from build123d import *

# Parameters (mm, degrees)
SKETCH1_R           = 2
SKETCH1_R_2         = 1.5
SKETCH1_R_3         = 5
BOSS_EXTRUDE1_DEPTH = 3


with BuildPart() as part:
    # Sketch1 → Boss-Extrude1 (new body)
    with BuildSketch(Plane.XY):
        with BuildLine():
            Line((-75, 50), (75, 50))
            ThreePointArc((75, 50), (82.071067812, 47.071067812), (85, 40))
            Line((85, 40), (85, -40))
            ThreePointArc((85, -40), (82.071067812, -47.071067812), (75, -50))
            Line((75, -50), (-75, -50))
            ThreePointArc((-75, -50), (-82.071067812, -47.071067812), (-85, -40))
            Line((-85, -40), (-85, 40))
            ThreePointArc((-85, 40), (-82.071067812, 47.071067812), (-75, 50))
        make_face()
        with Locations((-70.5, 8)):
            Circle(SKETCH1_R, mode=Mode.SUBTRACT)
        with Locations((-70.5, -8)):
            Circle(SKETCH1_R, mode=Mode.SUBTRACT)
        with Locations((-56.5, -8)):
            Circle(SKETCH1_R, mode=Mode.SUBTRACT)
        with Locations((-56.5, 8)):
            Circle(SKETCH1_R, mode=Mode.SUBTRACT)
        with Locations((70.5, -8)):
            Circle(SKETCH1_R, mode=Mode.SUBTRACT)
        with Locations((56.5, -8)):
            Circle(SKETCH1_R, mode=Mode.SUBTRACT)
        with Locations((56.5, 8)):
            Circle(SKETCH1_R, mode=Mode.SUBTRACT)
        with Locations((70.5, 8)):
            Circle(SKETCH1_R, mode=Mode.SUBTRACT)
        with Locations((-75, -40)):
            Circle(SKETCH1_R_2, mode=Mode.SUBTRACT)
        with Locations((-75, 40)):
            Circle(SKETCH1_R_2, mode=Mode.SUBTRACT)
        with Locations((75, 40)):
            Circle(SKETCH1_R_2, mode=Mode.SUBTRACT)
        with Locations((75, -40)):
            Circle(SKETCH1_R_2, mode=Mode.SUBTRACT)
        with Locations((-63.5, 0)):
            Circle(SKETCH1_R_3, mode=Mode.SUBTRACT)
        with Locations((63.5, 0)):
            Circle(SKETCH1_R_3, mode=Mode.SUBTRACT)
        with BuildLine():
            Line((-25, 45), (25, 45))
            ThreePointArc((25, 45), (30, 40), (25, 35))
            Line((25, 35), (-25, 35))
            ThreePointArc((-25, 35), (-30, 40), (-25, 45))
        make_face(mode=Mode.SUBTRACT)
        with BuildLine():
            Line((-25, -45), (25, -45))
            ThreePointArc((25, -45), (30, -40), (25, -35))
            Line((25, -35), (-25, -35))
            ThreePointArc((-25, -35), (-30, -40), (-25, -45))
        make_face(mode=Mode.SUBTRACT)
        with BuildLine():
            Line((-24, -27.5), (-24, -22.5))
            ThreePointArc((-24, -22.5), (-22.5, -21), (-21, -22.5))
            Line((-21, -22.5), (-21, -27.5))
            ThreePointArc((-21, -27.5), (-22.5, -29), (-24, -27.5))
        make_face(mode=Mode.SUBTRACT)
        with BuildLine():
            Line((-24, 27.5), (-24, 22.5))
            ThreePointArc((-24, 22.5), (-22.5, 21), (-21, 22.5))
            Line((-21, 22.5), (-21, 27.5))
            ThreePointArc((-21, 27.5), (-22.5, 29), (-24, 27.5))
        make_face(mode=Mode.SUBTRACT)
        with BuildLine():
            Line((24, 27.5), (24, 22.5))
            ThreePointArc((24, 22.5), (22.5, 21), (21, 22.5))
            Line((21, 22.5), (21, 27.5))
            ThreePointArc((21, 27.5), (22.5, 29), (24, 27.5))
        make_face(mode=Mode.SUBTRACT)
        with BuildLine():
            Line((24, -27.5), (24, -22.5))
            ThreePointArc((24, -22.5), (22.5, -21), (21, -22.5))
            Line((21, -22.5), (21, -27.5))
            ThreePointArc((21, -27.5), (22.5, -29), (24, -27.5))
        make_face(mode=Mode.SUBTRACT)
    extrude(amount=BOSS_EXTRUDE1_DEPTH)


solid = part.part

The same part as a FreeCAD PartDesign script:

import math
import FreeCAD as App
import Part
import Sketcher

V = App.Vector
Q = App.Units.Quantity

doc = App.newDocument("Part")
body = doc.addObject("PartDesign::Body", "Body")

# Sketch on XY plane
sketch1 = body.newObject("Sketcher::SketchObject", "Sketch")
sketch1.AttachmentSupport = (doc.getObject("XY_Plane"), [""])
sketch1.MapMode = "FlatFace"
sketch1.addGeometry([
    Part.LineSegment(V(75, 50, 0), V(-75, 50, 0)),  # 0
    Part.ArcOfCircle(Part.Circle(V(-75, 40, 0), V(0, 0, 1), 10), math.radians(90), math.radians(180)),  # 1
    Part.LineSegment(V(-85, 40, 0), V(-85, -40, 0)),  # 2
    Part.ArcOfCircle(Part.Circle(V(-75, -40, 0), V(0, 0, 1), 10), math.radians(180), math.radians(270)),  # 3
    Part.LineSegment(V(-75, -50, 0), V(75, -50, 0)),  # 4
    Part.ArcOfCircle(Part.Circle(V(75, -40, 0), V(0, 0, 1), 10), math.radians(-90), math.radians(0)),  # 5
    Part.LineSegment(V(85, -40, 0), V(85, 40, 0)),  # 6
    Part.ArcOfCircle(Part.Circle(V(75, 40, 0), V(0, 0, 1), 10), math.radians(0), math.radians(90)),  # 7
    Part.Circle(V(75, -40, 0), V(0, 0, 1), 1.5),  # 8
    Part.ArcOfCircle(Part.Circle(V(22.5, -27.5, 0), V(0, 0, 1), 1.5), math.radians(180), math.radians(360)),  # 9
    Part.LineSegment(V(21, -27.5, 0), V(21, -22.5, 0)),  # 10
    Part.ArcOfCircle(Part.Circle(V(22.5, -22.5, 0), V(0, 0, 1), 1.5), math.radians(0), math.radians(180)),  # 11
    Part.LineSegment(V(24, -22.5, 0), V(24, -27.5, 0)),  # 12
    Part.Circle(V(70.5, -8, 0), V(0, 0, 1), 2),  # 13
    Part.Circle(V(56.5, -8, 0), V(0, 0, 1), 2),  # 14
    Part.ArcOfCircle(Part.Circle(V(-25, -40, 0), V(0, 0, 1), 5), math.radians(90), math.radians(270)),  # 15
    Part.LineSegment(V(-25, -35, 0), V(25, -35, 0)),  # 16
    Part.ArcOfCircle(Part.Circle(V(25, -40, 0), V(0, 0, 1), 5), math.radians(-90), math.radians(90)),  # 17
    Part.LineSegment(V(25, -45, 0), V(-25, -45, 0)),  # 18
    Part.LineSegment(V(-24, -27.5, 0), V(-24, -22.5, 0)),  # 19
    Part.ArcOfCircle(Part.Circle(V(-22.5, -22.5, 0), V(0, 0, 1), 1.5), math.radians(0), math.radians(180)),  # 20
    Part.LineSegment(V(-21, -22.5, 0), V(-21, -27.5, 0)),  # 21
    Part.ArcOfCircle(Part.Circle(V(-22.5, -27.5, 0), V(0, 0, 1), 1.5), math.radians(180), math.radians(360)),  # 22
    Part.Circle(V(-75, -40, 0), V(0, 0, 1), 1.5),  # 23
    Part.Circle(V(-56.5, -8, 0), V(0, 0, 1), 2),  # 24
    Part.Circle(V(-70.5, -8, 0), V(0, 0, 1), 2),  # 25
    Part.Circle(V(63.5, 0, 0), V(0, 0, 1), 5),  # 26
    Part.Circle(V(70.5, 8, 0), V(0, 0, 1), 2),  # 27
    Part.Circle(V(56.5, 8, 0), V(0, 0, 1), 2),  # 28
    Part.Circle(V(75, 40, 0), V(0, 0, 1), 1.5),  # 29
    Part.LineSegment(V(24, 27.5, 0), V(24, 22.5, 0)),  # 30
    Part.ArcOfCircle(Part.Circle(V(22.5, 22.5, 0), V(0, 0, 1), 1.5), math.radians(180), math.radians(360)),  # 31
    Part.LineSegment(V(21, 22.5, 0), V(21, 27.5, 0)),  # 32
    Part.ArcOfCircle(Part.Circle(V(22.5, 27.5, 0), V(0, 0, 1), 1.5), math.radians(0), math.radians(180)),  # 33
    Part.Circle(V(-56.5, 8, 0), V(0, 0, 1), 2),  # 34
    Part.Circle(V(-63.5, 0, 0), V(0, 0, 1), 5),  # 35
    Part.Circle(V(-70.5, 8, 0), V(0, 0, 1), 2),  # 36
    Part.ArcOfCircle(Part.Circle(V(-22.5, 27.5, 0), V(0, 0, 1), 1.5), math.radians(0), math.radians(180)),  # 37
    Part.LineSegment(V(-21, 27.5, 0), V(-21, 22.5, 0)),  # 38
    Part.ArcOfCircle(Part.Circle(V(-22.5, 22.5, 0), V(0, 0, 1), 1.5), math.radians(180), math.radians(360)),  # 39
    Part.LineSegment(V(-24, 22.5, 0), V(-24, 27.5, 0)),  # 40
    Part.LineSegment(V(-25, 45, 0), V(25, 45, 0)),  # 41
    Part.ArcOfCircle(Part.Circle(V(25, 40, 0), V(0, 0, 1), 5), math.radians(-90), math.radians(90)),  # 42
    Part.LineSegment(V(25, 35, 0), V(-25, 35, 0)),  # 43
    Part.ArcOfCircle(Part.Circle(V(-25, 40, 0), V(0, 0, 1), 5), math.radians(90), math.radians(270)),  # 44
    Part.Circle(V(-75, 40, 0), V(0, 0, 1), 1.5),  # 45
], False)
sketch1.addConstraint([
    Sketcher.Constraint("Tangent", 0, 2, 1, 1),
    Sketcher.Constraint("Tangent", 1, 2, 2, 1),
    Sketcher.Constraint("Tangent", 2, 2, 3, 1),
    Sketcher.Constraint("Tangent", 3, 2, 4, 1),
    Sketcher.Constraint("Tangent", 4, 2, 5, 1),
    Sketcher.Constraint("Tangent", 5, 2, 6, 1),
    Sketcher.Constraint("Tangent", 6, 2, 7, 1),
    Sketcher.Constraint("Tangent", 7, 2, 0, 1),
    Sketcher.Constraint("Tangent", 9, 1, 10, 1),
    Sketcher.Constraint("Tangent", 10, 2, 11, 2),
    Sketcher.Constraint("Tangent", 11, 1, 12, 1),
    Sketcher.Constraint("Tangent", 12, 2, 9, 2),
    Sketcher.Constraint("Tangent", 15, 1, 16, 1),
    Sketcher.Constraint("Tangent", 16, 2, 17, 2),
    Sketcher.Constraint("Tangent", 17, 1, 18, 1),
    Sketcher.Constraint("Tangent", 18, 2, 15, 2),
    Sketcher.Constraint("Tangent", 19, 2, 20, 2),
    Sketcher.Constraint("Tangent", 20, 1, 21, 1),
    Sketcher.Constraint("Tangent", 21, 2, 22, 2),
    Sketcher.Constraint("Tangent", 22, 1, 19, 1),
    Sketcher.Constraint("Tangent", 30, 2, 31, 2),
    Sketcher.Constraint("Tangent", 31, 1, 32, 1),
    Sketcher.Constraint("Tangent", 32, 2, 33, 2),
    Sketcher.Constraint("Tangent", 33, 1, 30, 1),
    Sketcher.Constraint("Tangent", 37, 1, 38, 1),
    Sketcher.Constraint("Tangent", 38, 2, 39, 2),
    Sketcher.Constraint("Tangent", 39, 1, 40, 1),
    Sketcher.Constraint("Tangent", 40, 2, 37, 2),
    Sketcher.Constraint("Tangent", 41, 2, 42, 2),
    Sketcher.Constraint("Tangent", 42, 1, 43, 1),
    Sketcher.Constraint("Tangent", 43, 2, 44, 2),
    Sketcher.Constraint("Tangent", 44, 1, 41, 1),
    Sketcher.Constraint("Horizontal", 0),
    Sketcher.Constraint("Vertical", 2),
    Sketcher.Constraint("Horizontal", 4),
    Sketcher.Constraint("Vertical", 6),
    Sketcher.Constraint("Vertical", 10),
    Sketcher.Constraint("Vertical", 12),
    Sketcher.Constraint("Horizontal", 16),
    Sketcher.Constraint("Horizontal", 18),
    Sketcher.Constraint("Vertical", 19),
    Sketcher.Constraint("Vertical", 21),
    Sketcher.Constraint("Vertical", 30),
    Sketcher.Constraint("Vertical", 32),
    Sketcher.Constraint("Vertical", 38),
    Sketcher.Constraint("Vertical", 40),
    Sketcher.Constraint("Horizontal", 41),
    Sketcher.Constraint("Horizontal", 43),
    Sketcher.Constraint("Coincident", 8, 3, 5, 3),
    Sketcher.Constraint("Coincident", 23, 3, 3, 3),
    Sketcher.Constraint("Coincident", 29, 3, 7, 3),
    Sketcher.Constraint("Coincident", 45, 3, 1, 3),
    Sketcher.Constraint("Equal", 1, 3),
    Sketcher.Constraint("Equal", 3, 5),
    Sketcher.Constraint("Equal", 5, 7),
    Sketcher.Constraint("Equal", 8, 9),
    Sketcher.Constraint("Equal", 13, 14),
    Sketcher.Constraint("Equal", 11, 20),
    Sketcher.Constraint("Equal", 22, 23),
    Sketcher.Constraint("Equal", 14, 24),
    Sketcher.Constraint("Equal", 24, 25),
    Sketcher.Constraint("Equal", 17, 26),
    Sketcher.Constraint("Equal", 25, 27),
    Sketcher.Constraint("Equal", 27, 28),
    Sketcher.Constraint("Equal", 23, 29),
    Sketcher.Constraint("Equal", 29, 31),
    Sketcher.Constraint("Equal", 28, 34),
    Sketcher.Constraint("Equal", 26, 35),
    Sketcher.Constraint("Equal", 34, 36),
    Sketcher.Constraint("Equal", 33, 37),
    Sketcher.Constraint("Equal", 35, 42),
    Sketcher.Constraint("Equal", 39, 45),
    Sketcher.Constraint("Symmetric", 1, 3, 5, 3, -1, 1),
    Sketcher.Constraint("Symmetric", 25, 3, 27, 3, -1, 1),
    Sketcher.Constraint("Symmetric", 24, 3, 28, 3, -1, 1),
    Sketcher.Constraint("Symmetric", 20, 3, 31, 3, -1, 1),
    Sketcher.Constraint("Symmetric", 14, 3, 34, 3, -1, 1),
    Sketcher.Constraint("Symmetric", 26, 3, 35, 3, -1, 1),
    Sketcher.Constraint("Symmetric", 13, 3, 36, 3, -1, 1),
    Sketcher.Constraint("Symmetric", 9, 3, 37, 3, -1, 1),
    Sketcher.Constraint("Symmetric", 15, 3, 42, 3, -1, 1),
    Sketcher.Constraint("Symmetric", 11, 3, 20, 3, -2),
    Sketcher.Constraint("Symmetric", 14, 3, 24, 3, -2),
    Sketcher.Constraint("Symmetric", 13, 3, 25, 3, -2),
    Sketcher.Constraint("PointOnObject", 26, 3, -1),
    Sketcher.Constraint("Horizontal", 13, 3, 14, 3),
    Sketcher.Constraint("Horizontal", 8, 3, 15, 3),
    Sketcher.Constraint("Horizontal", 9, 3, 22, 3),
    Sketcher.Constraint("Horizontal", 33, 3, 37, 3),
    Sketcher.Constraint("Horizontal", 31, 3, 39, 3),
    Sketcher.Constraint("Vertical", 17, 3, 42, 3),
    Sketcher.Constraint("Vertical", 15, 3, 44, 3),
    Sketcher.Constraint("Diameter", 8, Q("3 mm")),
    Sketcher.Constraint("Diameter", 13, Q("4 mm")),
    Sketcher.Constraint("Diameter", 26, Q("10 mm")),
    Sketcher.Constraint("Radius", 1, Q("10 mm")),
    Sketcher.Constraint("DistanceX", 0, 2, 0, 1, Q("150 mm")),
    Sketcher.Constraint("DistanceX", 16, 1, 16, 2, Q("50 mm")),
    Sketcher.Constraint("DistanceY", 2, 2, 2, 1, Q("80 mm")),
    Sketcher.Constraint("DistanceY", 10, 1, 10, 2, Q("5 mm")),
    Sketcher.Constraint("DistanceY", 13, 3, -1, 1, Q("8 mm")),
    Sketcher.Constraint("DistanceX", -1, 1, 9, 1, Q("21 mm")),
    Sketcher.Constraint("DistanceY", 9, 3, -1, 1, Q("27.5 mm")),
    Sketcher.Constraint("DistanceX", -1, 1, 13, 3, Q("70.5 mm")),
    Sketcher.Constraint("DistanceX", -1, 1, 14, 3, Q("56.5 mm")),
    Sketcher.Constraint("DistanceX", -1, 1, 26, 3, Q("63.5 mm")),
])
pad1 = body.newObject("PartDesign::Pad", "Pad")
pad1.Profile = sketch1
pad1.Length = 3

doc.recompute()
